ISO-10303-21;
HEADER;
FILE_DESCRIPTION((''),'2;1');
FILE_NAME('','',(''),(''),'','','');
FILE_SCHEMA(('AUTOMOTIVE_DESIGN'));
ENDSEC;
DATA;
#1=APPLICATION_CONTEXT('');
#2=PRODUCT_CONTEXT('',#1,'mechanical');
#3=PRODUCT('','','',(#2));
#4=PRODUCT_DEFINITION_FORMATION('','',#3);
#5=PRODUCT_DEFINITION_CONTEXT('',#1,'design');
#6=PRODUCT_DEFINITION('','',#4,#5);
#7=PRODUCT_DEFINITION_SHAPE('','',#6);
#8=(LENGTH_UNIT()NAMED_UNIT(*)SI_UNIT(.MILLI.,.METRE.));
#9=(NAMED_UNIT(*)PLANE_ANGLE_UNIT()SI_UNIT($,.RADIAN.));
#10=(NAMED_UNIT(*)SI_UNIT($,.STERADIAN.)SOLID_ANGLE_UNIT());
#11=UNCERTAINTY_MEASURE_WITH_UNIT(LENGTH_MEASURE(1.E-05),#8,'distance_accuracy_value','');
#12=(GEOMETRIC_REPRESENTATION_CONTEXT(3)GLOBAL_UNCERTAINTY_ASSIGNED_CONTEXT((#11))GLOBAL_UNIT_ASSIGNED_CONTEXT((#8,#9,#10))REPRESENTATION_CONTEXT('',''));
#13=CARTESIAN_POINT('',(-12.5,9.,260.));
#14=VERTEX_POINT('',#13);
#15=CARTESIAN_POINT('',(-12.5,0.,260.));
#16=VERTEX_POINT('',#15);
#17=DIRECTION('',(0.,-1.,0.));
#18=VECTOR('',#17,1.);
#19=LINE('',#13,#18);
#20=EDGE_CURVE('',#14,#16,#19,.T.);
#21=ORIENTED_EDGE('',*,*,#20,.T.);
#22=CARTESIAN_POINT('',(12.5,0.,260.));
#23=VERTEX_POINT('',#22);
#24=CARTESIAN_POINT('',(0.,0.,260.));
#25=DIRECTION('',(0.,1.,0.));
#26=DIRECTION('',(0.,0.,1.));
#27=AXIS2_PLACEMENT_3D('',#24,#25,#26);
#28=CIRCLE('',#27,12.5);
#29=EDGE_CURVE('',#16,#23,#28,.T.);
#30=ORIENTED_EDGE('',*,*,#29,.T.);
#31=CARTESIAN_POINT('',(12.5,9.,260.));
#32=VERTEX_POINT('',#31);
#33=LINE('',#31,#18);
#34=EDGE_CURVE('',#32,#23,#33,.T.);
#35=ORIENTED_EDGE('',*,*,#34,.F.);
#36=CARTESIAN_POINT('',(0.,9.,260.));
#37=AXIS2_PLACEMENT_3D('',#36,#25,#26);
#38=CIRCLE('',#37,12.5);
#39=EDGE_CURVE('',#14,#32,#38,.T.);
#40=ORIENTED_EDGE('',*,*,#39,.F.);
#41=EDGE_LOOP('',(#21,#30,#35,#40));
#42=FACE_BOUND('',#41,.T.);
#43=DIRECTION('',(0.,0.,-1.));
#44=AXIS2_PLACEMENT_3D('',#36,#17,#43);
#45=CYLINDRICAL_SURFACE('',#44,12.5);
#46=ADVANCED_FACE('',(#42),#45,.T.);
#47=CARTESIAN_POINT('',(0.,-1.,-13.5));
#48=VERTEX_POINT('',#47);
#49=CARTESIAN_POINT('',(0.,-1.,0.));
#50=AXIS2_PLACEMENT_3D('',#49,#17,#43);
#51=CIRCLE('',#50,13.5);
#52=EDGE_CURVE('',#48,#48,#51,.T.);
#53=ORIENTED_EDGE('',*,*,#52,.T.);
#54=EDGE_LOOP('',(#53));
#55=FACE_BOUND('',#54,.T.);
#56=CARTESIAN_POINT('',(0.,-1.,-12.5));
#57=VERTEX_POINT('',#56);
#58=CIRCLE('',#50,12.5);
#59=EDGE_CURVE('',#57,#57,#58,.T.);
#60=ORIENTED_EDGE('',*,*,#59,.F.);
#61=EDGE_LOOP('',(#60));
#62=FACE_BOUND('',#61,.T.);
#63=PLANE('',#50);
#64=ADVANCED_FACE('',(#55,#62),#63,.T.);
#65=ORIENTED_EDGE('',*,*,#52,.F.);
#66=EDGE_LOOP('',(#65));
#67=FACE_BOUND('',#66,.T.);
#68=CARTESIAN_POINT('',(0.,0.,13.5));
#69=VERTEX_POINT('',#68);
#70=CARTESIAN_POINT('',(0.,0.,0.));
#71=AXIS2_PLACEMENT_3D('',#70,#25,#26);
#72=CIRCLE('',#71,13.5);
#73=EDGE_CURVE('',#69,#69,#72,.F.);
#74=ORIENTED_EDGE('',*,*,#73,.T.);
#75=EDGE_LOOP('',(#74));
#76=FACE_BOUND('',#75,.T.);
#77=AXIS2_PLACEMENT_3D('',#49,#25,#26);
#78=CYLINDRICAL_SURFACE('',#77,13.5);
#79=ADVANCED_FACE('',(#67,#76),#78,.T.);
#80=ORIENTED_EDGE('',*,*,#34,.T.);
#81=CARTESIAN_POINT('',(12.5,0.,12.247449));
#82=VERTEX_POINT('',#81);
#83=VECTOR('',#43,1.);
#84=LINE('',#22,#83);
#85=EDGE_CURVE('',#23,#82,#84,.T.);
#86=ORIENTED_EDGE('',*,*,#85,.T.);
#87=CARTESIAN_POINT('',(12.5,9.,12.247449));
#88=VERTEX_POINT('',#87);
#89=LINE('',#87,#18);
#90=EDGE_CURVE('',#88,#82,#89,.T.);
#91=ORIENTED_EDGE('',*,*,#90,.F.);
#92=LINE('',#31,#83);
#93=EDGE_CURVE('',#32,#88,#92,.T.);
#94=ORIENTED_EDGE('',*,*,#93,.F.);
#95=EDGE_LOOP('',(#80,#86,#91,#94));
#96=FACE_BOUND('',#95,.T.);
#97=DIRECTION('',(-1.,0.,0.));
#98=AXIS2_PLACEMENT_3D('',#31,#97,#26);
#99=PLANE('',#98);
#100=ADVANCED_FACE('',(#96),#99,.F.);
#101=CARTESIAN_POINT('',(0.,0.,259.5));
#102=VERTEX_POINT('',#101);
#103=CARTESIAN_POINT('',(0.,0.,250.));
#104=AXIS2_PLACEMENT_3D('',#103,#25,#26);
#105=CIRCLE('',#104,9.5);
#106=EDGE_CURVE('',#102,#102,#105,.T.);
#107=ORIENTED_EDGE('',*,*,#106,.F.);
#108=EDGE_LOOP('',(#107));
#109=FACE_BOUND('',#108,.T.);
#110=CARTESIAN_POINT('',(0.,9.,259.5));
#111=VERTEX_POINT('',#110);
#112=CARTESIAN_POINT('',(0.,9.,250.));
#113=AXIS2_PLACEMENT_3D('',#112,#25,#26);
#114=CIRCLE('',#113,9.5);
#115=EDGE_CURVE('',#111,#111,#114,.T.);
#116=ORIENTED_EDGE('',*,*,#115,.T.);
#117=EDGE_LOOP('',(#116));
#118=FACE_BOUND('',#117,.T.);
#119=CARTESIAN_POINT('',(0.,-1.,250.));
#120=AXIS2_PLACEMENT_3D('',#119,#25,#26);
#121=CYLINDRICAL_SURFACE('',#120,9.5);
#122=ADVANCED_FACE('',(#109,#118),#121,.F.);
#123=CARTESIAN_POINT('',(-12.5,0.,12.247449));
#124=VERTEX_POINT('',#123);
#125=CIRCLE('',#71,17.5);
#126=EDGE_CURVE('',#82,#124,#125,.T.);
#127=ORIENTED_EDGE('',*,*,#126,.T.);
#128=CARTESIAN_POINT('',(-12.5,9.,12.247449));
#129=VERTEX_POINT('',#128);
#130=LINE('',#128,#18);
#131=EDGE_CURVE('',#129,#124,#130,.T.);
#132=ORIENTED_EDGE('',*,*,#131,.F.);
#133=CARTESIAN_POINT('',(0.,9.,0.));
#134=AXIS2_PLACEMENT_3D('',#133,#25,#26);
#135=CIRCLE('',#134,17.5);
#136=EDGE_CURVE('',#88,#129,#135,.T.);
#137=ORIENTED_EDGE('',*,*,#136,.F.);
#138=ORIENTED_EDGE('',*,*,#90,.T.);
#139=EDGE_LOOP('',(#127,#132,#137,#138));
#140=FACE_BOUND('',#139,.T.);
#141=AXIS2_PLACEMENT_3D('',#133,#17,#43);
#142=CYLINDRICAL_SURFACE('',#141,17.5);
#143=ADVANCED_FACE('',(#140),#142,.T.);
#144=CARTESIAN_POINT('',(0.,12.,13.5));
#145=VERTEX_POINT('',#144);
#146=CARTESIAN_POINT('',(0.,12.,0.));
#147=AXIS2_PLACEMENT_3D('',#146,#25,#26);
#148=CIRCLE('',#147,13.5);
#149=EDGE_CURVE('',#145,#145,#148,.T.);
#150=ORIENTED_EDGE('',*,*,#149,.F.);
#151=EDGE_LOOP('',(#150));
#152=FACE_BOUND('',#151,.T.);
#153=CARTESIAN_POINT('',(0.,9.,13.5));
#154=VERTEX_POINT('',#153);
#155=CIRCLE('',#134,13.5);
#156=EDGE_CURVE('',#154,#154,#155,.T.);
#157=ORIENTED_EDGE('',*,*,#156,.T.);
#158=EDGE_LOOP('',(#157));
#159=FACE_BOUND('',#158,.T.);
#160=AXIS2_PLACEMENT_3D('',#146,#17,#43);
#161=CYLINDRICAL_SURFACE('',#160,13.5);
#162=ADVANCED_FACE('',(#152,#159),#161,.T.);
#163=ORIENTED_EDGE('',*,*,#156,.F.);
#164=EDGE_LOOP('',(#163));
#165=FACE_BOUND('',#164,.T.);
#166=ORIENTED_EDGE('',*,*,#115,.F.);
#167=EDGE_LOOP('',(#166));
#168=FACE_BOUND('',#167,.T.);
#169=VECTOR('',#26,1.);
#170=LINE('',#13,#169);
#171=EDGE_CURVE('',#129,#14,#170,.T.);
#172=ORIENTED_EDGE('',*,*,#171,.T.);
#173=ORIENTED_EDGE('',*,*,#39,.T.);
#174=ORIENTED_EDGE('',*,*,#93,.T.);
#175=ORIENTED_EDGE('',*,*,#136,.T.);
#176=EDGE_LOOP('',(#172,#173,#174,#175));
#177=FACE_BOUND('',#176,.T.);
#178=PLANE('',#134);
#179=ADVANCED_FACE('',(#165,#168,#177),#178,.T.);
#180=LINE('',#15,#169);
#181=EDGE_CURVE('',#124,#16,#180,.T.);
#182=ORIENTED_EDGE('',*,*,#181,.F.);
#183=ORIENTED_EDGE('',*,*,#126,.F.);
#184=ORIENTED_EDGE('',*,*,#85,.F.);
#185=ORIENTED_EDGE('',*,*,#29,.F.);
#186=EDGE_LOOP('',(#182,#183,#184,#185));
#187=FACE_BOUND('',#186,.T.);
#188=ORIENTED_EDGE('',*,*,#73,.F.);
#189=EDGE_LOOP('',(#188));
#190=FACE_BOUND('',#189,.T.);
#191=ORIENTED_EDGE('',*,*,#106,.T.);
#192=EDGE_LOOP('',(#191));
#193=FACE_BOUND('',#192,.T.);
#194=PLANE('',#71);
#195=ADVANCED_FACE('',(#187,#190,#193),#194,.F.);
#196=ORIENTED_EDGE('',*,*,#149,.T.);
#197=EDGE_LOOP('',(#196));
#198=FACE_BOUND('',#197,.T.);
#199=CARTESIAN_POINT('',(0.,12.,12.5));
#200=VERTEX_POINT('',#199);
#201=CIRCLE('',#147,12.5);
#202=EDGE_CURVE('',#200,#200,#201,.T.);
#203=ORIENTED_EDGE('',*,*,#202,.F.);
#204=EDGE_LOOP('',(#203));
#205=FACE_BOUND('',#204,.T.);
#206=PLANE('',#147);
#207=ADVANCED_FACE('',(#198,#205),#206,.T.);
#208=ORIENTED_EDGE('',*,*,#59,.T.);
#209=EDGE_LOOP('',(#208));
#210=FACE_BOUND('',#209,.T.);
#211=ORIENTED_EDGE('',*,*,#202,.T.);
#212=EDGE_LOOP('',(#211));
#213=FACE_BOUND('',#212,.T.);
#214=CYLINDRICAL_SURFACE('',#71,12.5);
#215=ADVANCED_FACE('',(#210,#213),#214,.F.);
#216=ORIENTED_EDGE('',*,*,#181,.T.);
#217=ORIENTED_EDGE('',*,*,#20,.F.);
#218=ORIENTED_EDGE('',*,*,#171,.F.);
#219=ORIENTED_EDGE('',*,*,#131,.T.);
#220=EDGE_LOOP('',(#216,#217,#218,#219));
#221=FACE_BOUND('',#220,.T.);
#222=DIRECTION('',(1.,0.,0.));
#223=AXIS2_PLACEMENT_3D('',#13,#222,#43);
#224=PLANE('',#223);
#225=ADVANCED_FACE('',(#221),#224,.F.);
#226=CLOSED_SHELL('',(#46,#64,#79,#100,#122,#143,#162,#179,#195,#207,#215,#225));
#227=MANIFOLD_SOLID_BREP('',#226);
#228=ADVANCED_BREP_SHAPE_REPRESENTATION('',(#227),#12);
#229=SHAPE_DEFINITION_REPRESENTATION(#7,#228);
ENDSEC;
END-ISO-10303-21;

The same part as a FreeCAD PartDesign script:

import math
import FreeCAD as App
import Part
import Sketcher
Q = App.Units.Quantity

doc = App.newDocument("Part")
body = doc.addObject("PartDesign::Body", "Body")

# Sketch on XZ plane
sketch1 = body.newObject("Sketcher::SketchObject", "Sketch")
sketch1.AttachmentSupport = (doc.getObject("XZ_Plane"), [""])
sketch1.MapMode = "FlatFace"
sketch1.addGeometry([
    Part.LineSegment(App.Vector(-12.5, 12.247449, 0), App.Vector(-12.5, 260, 0)),
    Part.ArcOfCircle(Part.Circle(App.Vector(0, 260, 0), App.Vector(0, 0, 1), 12.5), math.radians(0), math.radians(180)),
    Part.LineSegment(App.Vector(12.5, 260, 0), App.Vector(12.5, 12.247449, 0)),
    Part.ArcOfCircle(Part.Circle(App.Vector(0, 0, 0), App.Vector(0, 0, 1), 17.5), math.radians(135.584691), math.radians(404.415309)),
], False)
sketch1.addConstraint([
    Sketcher.Constraint("Tangent", 0, 2, 1, 2),
    Sketcher.Constraint("Tangent", 1, 1, 2, 1),
    Sketcher.Constraint("Coincident", 2, 2, 3, 2),
    Sketcher.Constraint("Coincident", 3, 1, 0, 1),
    Sketcher.Constraint("Vertical", 0),
    Sketcher.Constraint("Vertical", 2),
    Sketcher.Constraint("Coincident", 3, 3, -1, 1),
    Sketcher.Constraint("PointOnObject", 1, 3, -2),
    Sketcher.Constraint("Radius", 1, Q("12.5 mm")),
    Sketcher.Constraint("Radius", 3, Q("17.5 mm")),
    Sketcher.Constraint("DistanceY", -1, 1, 1, 3, Q("260 mm")),
])
pad1 = body.newObject("PartDesign::Pad", "Pad")
pad1.Profile = sketch1
pad1.Length = 9
pad1.Reversed = True

# Sketch on XZ plane
sketch2 = body.newObject("Sketcher::SketchObject", "Sketch001")
sketch2.AttachmentSupport = (doc.getObject("XZ_Plane"), [""])
sketch2.MapMode = "FlatFace"
sketch2.AttachmentOffset = App.Placement(App.Vector(0, 0, -9), App.Rotation())
sketch2.addGeometry(Part.Circle(App.Vector(0, 0, 0), App.Vector(0, 0, 1), 12.5), False)
sketch2.addConstraint([
    Sketcher.Constraint("Coincident", 0, 3, -1, 1),
    Sketcher.Constraint("Diameter", 0, Q("25 mm")),
])
pocket1 = body.newObject("PartDesign::Pocket", "Pocket")
pocket1.Profile = sketch2
pocket1.Type = "ThroughAll"
pocket1.Reversed = True

# Sketch on XZ plane
sketch3 = body.newObject("Sketcher::SketchObject", "Sketch002")
sketch3.AttachmentSupport = (doc.getObject("XZ_Plane"), [""])
sketch3.MapMode = "FlatFace"
sketch3.AttachmentOffset = App.Placement(App.Vector(0, 0, -9), App.Rotation())
sketch3.addGeometry([
    Part.Circle(App.Vector(0, 0, 0), App.Vector(0, 0, 1), 13.5),
    Part.Circle(App.Vector(0, 0, 0), App.Vector(0, 0, 1), 12.5),
], False)
sketch3.addConstraint([
    Sketcher.Constraint("Coincident", 0, 3, -1, 1),
    Sketcher.Constraint("Coincident", 1, 3, -1, 1),
    Sketcher.Constraint("Diameter", 0, Q("27 mm")),
    Sketcher.Constraint("Diameter", 1, Q("25 mm")),
])
pad2 = body.newObject("PartDesign::Pad", "Pad001")
pad2.Profile = sketch3
pad2.Length = 3
pad2.Reversed = True

# Sketch on XZ plane
sketch4 = body.newObject("Sketcher::SketchObject", "Sketch003")
sketch4.AttachmentSupport = (doc.getObject("XZ_Plane"), [""])
sketch4.MapMode = "FlatFace"
sketch4.addGeometry([
    Part.Circle(App.Vector(0, 0, 0), App.Vector(0, 0, 1), 13.5),
    Part.Circle(App.Vector(0, 0, 0), App.Vector(0, 0, 1), 12.5),
], False)
sketch4.addConstraint([
    Sketcher.Constraint("Coincident", 0, 3, -1, 1),
    Sketcher.Constraint("Coincident", 1, 3, -1, 1),
    Sketcher.Constraint("Diameter", 0, Q("27 mm")),
    Sketcher.Constraint("Diameter", 1, Q("25 mm")),
])
pad3 = body.newObject("PartDesign::Pad", "Pad002")
pad3.Profile = sketch4
pad3.Length = 1

# Sketch on XZ plane
sketch5 = body.newObject("Sketcher::SketchObject", "Sketch004")
sketch5.AttachmentSupport = (doc.getObject("XZ_Plane"), [""])
sketch5.MapMode = "FlatFace"
sketch5.AttachmentOffset = App.Placement(App.Vector(0, 0, -9), App.Rotation())
sketch5.addGeometry(Part.Circle(App.Vector(0, 250, 0), App.Vector(0, 0, 1), 9.5), False)
sketch5.addConstraint([
    Sketcher.Constraint("PointOnObject", 0, 3, -2),
    Sketcher.Constraint("Diameter", 0, Q("19 mm")),
    Sketcher.Constraint("DistanceY", -1, 1, 0, 3, Q("250 mm")),
])
pocket2 = body.newObject("PartDesign::Pocket", "Pocket001")
pocket2.Profile = sketch5
pocket2.Type = "ThroughAll"
pocket2.Reversed = True

doc.recompute()
